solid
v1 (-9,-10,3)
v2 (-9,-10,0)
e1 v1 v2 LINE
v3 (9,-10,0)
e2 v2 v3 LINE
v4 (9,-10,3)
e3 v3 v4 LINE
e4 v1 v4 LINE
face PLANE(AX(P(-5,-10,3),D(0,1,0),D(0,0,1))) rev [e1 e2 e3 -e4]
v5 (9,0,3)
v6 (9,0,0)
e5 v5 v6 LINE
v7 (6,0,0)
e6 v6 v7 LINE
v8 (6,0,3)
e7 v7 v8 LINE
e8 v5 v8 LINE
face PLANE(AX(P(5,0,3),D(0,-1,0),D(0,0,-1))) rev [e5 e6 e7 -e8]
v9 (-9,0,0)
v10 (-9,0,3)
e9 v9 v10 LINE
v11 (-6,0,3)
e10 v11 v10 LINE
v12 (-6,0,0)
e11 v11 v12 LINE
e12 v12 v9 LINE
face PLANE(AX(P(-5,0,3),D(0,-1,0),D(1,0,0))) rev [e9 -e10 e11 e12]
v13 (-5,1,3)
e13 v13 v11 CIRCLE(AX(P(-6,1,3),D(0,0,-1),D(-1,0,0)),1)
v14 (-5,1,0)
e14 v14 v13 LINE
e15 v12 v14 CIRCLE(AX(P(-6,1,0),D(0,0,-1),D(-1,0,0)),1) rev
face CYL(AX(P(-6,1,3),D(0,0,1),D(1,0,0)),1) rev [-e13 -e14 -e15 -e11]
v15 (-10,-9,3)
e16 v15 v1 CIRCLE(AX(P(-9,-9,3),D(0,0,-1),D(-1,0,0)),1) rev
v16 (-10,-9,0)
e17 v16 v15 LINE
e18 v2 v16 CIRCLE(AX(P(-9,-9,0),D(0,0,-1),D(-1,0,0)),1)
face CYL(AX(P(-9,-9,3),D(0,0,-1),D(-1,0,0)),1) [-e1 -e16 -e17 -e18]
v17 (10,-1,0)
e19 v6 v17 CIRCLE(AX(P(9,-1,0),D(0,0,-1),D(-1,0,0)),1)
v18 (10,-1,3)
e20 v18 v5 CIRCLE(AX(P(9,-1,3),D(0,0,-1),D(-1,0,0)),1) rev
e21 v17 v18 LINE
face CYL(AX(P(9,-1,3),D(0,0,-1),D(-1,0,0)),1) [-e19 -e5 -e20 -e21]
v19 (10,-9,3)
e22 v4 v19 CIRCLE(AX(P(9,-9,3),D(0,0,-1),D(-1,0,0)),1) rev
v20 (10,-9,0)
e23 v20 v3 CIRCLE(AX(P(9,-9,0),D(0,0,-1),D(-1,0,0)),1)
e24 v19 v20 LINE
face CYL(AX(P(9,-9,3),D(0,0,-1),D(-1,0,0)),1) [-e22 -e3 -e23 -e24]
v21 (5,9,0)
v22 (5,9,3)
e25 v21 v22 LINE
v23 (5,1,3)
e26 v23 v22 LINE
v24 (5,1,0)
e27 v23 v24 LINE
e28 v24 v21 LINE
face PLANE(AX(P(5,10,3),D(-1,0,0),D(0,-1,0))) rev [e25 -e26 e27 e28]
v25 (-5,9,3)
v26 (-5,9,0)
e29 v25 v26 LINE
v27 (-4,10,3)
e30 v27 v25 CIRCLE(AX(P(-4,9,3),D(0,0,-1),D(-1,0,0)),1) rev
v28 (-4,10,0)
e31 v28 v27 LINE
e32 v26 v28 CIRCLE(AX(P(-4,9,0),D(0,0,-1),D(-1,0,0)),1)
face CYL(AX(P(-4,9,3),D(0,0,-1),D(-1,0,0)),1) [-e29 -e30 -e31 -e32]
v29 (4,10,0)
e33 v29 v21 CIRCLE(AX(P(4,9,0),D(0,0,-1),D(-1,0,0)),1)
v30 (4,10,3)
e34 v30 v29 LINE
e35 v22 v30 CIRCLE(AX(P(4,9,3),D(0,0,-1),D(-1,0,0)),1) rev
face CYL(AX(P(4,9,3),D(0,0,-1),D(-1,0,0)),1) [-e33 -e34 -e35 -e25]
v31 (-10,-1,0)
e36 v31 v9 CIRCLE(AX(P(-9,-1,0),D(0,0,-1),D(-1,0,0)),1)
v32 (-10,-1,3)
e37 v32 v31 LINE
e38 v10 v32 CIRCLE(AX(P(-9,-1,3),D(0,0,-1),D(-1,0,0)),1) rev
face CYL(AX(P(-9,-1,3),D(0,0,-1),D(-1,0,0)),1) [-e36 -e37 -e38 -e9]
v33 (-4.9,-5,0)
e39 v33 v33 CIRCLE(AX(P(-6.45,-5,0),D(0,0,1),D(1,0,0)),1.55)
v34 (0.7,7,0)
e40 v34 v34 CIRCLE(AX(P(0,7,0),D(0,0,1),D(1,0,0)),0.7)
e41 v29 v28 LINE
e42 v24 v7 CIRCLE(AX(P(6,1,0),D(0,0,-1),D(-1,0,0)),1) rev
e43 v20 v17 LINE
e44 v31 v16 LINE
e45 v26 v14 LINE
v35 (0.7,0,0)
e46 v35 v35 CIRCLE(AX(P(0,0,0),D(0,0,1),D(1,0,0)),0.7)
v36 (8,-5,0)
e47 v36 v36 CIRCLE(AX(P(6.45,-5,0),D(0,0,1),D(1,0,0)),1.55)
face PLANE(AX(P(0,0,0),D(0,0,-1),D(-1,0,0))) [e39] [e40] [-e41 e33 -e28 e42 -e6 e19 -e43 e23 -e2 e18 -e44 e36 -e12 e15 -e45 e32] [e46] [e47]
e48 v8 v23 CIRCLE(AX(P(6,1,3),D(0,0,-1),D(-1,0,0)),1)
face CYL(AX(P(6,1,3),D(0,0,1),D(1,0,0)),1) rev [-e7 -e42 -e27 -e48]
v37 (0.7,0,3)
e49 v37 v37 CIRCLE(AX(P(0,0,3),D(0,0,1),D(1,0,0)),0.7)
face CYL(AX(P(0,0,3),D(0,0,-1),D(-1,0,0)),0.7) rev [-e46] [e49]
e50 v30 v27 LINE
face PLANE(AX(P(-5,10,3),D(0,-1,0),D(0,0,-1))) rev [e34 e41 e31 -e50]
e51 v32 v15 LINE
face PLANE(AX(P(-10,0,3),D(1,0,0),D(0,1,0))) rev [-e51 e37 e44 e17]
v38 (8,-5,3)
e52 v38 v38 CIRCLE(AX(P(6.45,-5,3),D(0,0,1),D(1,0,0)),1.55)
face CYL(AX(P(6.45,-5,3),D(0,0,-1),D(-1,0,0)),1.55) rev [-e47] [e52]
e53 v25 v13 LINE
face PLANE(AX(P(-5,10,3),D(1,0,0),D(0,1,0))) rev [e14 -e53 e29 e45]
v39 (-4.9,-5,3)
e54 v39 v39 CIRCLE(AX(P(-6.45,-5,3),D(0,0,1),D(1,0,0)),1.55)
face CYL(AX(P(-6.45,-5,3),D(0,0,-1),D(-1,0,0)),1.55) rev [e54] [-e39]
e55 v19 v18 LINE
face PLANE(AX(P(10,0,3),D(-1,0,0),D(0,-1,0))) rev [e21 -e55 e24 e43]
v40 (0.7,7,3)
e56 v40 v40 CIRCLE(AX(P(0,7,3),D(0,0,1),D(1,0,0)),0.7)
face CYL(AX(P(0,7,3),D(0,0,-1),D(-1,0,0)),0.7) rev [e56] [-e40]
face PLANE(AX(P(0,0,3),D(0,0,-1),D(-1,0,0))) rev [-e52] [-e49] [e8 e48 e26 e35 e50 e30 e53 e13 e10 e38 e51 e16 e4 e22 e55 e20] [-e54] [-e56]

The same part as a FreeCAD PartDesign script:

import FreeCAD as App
import Part
import Sketcher

V = App.Vector
Q = App.Units.Quantity


def edges_at(feature, points):
    """Names of the edges that pass closest to the given points."""
    edges = feature.Shape.Edges
    near = lambda p: min(range(len(edges)), key=lambda i: edges[i].distToShape(Part.Vertex(*p))[0])
    return sorted({f"Edge{near(p) + 1}" for p in points})

doc = App.newDocument("Part")
body = doc.addObject("PartDesign::Body", "Body")

# Sketch on XY plane
sketch1 = body.newObject("Sketcher::SketchObject", "Sketch")
sketch1.AttachmentSupport = (doc.getObject("XY_Plane"), [""])
sketch1.MapMode = "FlatFace"
sketch1.addGeometry(Part.LineSegment(V(5, 10, 0), V(-5, 10, 0)), False)
sketch1.addGeometry(Part.LineSegment(V(-5, 10, 0), V(-5, 0, 0)), False)
sketch1.addGeometry(Part.LineSegment(V(-5, 0, 0), V(-10, 0, 0)), False)
sketch1.addGeometry(Part.LineSegment(V(-10, 0, 0), V(-10, -10, 0)), False)
sketch1.addGeometry(Part.LineSegment(V(-10, -10, 0), V(10, -10, 0)), False)
sketch1.addGeometry(Part.LineSegment(V(10, -10, 0), V(10, 0, 0)), False)
sketch1.addGeometry(Part.LineSegment(V(10, 0, 0), V(5, 0, 0)), False)
sketch1.addGeometry(Part.LineSegment(V(5, 0, 0), V(5, 10, 0)), False)
sketch1.addGeometry(Part.Circle(V(6.5, -5, 0), V(0, 0, 1), 1.6), False)
sketch1.addGeometry(Part.Circle(V(-6.5, -5, 0), V(0, 0, 1), 1.6), False)
sketch1.addGeometry(Part.Circle(V(0, 0, 0), V(0, 0, 1), 0.7), False)
sketch1.addGeometry(Part.Circle(V(0, 7, 0), V(0, 0, 1), 0.7), False)
sketch1.addConstraint(Sketcher.Constraint("Coincident", 0, 2, 1, 1))
sketch1.addConstraint(Sketcher.Constraint("Coincident", 1, 2, 2, 1))
sketch1.addConstraint(Sketcher.Constraint("Coincident", 2, 2, 3, 1))
sketch1.addConstraint(Sketcher.Constraint("Coincident", 3, 2, 4, 1))
sketch1.addConstraint(Sketcher.Constraint("Coincident", 4, 2, 5, 1))
sketch1.addConstraint(Sketcher.Constraint("Coincident", 5, 2, 6, 1))
sketch1.addConstraint(Sketcher.Constraint("Coincident", 6, 2, 7, 1))
sketch1.addConstraint(Sketcher.Constraint("Coincident", 7, 2, 0, 1))
sketch1.addConstraint(Sketcher.Constraint("Horizontal", 0))
sketch1.addConstraint(Sketcher.Constraint("Vertical", 1))
sketch1.addConstraint(Sketcher.Constraint("Horizontal", 2))
sketch1.addConstraint(Sketcher.Constraint("Vertical", 3))
sketch1.addConstraint(Sketcher.Constraint("Horizontal", 4))
sketch1.addConstraint(Sketcher.Constraint("Vertical", 5))
sketch1.addConstraint(Sketcher.Constraint("Horizontal", 6))
sketch1.addConstraint(Sketcher.Constraint("Vertical", 7))
sketch1.addConstraint(Sketcher.Constraint("Coincident", 10, 3, -1, 1))
sketch1.addConstraint(Sketcher.Constraint("Equal", 8, 9))
sketch1.addConstraint(Sketcher.Constraint("Equal", 10, 11))
sketch1.addConstraint(Sketcher.Constraint("Symmetric", 2, 2, 5, 2, -1, 1))
sketch1.addConstraint(Sketcher.Constraint("Symmetric", 8, 3, 9, 3, -2))
sketch1.addConstraint(Sketcher.Constraint("Symmetric", 1, 2, 6, 2, -2))
sketch1.addConstraint(Sketcher.Constraint("PointOnObject", 11, 3, -2))
sketch1.addConstraint(Sketcher.Constraint("Equal", 0, 1))
sketch1.addConstraint(Sketcher.Constraint("Equal", 1, 3))
sketch1.addConstraint(Sketcher.Constraint("Diameter", 8, Q("3.1 mm")))
sketch1.addConstraint(Sketcher.Constraint("Diameter", 10, Q("1.4 mm")))
sketch1.addConstraint(Sketcher.Constraint("DistanceX", 0, 2, 0, 1, Q("10 mm")))
sketch1.addConstraint(Sketcher.Constraint("DistanceX", 2, 2, 2, 1, Q("5 mm")))
sketch1.addConstraint(Sketcher.Constraint("DistanceY", 8, 3, -1, 1, Q("5 mm")))
sketch1.addConstraint(Sketcher.Constraint("DistanceY", -1, 1, 11, 3, Q("7 mm")))
sketch1.addConstraint(Sketcher.Constraint("DistanceX", 9, 3, 8, 3, Q("12.9 mm")))
pad1 = body.newObject("PartDesign::Pad", "Pad")
pad1.Profile = sketch1
pad1.Length = 3
doc.recompute()

fillet = body.newObject("PartDesign::Fillet", "Fillet")
fillet.Base = (pad1, edges_at(pad1, [
    (-10, -10, 1.5),
    (-10, 0, 1.5),
    (-5, 0, 1.5),
    (-5, 10, 1.5),
    (5, 10, 1.5),
    (5, 0, 1.5),
    (10, 0, 1.5),
    (10, -10, 1.5),
]))
fillet.Radius = 1

doc.recompute()
